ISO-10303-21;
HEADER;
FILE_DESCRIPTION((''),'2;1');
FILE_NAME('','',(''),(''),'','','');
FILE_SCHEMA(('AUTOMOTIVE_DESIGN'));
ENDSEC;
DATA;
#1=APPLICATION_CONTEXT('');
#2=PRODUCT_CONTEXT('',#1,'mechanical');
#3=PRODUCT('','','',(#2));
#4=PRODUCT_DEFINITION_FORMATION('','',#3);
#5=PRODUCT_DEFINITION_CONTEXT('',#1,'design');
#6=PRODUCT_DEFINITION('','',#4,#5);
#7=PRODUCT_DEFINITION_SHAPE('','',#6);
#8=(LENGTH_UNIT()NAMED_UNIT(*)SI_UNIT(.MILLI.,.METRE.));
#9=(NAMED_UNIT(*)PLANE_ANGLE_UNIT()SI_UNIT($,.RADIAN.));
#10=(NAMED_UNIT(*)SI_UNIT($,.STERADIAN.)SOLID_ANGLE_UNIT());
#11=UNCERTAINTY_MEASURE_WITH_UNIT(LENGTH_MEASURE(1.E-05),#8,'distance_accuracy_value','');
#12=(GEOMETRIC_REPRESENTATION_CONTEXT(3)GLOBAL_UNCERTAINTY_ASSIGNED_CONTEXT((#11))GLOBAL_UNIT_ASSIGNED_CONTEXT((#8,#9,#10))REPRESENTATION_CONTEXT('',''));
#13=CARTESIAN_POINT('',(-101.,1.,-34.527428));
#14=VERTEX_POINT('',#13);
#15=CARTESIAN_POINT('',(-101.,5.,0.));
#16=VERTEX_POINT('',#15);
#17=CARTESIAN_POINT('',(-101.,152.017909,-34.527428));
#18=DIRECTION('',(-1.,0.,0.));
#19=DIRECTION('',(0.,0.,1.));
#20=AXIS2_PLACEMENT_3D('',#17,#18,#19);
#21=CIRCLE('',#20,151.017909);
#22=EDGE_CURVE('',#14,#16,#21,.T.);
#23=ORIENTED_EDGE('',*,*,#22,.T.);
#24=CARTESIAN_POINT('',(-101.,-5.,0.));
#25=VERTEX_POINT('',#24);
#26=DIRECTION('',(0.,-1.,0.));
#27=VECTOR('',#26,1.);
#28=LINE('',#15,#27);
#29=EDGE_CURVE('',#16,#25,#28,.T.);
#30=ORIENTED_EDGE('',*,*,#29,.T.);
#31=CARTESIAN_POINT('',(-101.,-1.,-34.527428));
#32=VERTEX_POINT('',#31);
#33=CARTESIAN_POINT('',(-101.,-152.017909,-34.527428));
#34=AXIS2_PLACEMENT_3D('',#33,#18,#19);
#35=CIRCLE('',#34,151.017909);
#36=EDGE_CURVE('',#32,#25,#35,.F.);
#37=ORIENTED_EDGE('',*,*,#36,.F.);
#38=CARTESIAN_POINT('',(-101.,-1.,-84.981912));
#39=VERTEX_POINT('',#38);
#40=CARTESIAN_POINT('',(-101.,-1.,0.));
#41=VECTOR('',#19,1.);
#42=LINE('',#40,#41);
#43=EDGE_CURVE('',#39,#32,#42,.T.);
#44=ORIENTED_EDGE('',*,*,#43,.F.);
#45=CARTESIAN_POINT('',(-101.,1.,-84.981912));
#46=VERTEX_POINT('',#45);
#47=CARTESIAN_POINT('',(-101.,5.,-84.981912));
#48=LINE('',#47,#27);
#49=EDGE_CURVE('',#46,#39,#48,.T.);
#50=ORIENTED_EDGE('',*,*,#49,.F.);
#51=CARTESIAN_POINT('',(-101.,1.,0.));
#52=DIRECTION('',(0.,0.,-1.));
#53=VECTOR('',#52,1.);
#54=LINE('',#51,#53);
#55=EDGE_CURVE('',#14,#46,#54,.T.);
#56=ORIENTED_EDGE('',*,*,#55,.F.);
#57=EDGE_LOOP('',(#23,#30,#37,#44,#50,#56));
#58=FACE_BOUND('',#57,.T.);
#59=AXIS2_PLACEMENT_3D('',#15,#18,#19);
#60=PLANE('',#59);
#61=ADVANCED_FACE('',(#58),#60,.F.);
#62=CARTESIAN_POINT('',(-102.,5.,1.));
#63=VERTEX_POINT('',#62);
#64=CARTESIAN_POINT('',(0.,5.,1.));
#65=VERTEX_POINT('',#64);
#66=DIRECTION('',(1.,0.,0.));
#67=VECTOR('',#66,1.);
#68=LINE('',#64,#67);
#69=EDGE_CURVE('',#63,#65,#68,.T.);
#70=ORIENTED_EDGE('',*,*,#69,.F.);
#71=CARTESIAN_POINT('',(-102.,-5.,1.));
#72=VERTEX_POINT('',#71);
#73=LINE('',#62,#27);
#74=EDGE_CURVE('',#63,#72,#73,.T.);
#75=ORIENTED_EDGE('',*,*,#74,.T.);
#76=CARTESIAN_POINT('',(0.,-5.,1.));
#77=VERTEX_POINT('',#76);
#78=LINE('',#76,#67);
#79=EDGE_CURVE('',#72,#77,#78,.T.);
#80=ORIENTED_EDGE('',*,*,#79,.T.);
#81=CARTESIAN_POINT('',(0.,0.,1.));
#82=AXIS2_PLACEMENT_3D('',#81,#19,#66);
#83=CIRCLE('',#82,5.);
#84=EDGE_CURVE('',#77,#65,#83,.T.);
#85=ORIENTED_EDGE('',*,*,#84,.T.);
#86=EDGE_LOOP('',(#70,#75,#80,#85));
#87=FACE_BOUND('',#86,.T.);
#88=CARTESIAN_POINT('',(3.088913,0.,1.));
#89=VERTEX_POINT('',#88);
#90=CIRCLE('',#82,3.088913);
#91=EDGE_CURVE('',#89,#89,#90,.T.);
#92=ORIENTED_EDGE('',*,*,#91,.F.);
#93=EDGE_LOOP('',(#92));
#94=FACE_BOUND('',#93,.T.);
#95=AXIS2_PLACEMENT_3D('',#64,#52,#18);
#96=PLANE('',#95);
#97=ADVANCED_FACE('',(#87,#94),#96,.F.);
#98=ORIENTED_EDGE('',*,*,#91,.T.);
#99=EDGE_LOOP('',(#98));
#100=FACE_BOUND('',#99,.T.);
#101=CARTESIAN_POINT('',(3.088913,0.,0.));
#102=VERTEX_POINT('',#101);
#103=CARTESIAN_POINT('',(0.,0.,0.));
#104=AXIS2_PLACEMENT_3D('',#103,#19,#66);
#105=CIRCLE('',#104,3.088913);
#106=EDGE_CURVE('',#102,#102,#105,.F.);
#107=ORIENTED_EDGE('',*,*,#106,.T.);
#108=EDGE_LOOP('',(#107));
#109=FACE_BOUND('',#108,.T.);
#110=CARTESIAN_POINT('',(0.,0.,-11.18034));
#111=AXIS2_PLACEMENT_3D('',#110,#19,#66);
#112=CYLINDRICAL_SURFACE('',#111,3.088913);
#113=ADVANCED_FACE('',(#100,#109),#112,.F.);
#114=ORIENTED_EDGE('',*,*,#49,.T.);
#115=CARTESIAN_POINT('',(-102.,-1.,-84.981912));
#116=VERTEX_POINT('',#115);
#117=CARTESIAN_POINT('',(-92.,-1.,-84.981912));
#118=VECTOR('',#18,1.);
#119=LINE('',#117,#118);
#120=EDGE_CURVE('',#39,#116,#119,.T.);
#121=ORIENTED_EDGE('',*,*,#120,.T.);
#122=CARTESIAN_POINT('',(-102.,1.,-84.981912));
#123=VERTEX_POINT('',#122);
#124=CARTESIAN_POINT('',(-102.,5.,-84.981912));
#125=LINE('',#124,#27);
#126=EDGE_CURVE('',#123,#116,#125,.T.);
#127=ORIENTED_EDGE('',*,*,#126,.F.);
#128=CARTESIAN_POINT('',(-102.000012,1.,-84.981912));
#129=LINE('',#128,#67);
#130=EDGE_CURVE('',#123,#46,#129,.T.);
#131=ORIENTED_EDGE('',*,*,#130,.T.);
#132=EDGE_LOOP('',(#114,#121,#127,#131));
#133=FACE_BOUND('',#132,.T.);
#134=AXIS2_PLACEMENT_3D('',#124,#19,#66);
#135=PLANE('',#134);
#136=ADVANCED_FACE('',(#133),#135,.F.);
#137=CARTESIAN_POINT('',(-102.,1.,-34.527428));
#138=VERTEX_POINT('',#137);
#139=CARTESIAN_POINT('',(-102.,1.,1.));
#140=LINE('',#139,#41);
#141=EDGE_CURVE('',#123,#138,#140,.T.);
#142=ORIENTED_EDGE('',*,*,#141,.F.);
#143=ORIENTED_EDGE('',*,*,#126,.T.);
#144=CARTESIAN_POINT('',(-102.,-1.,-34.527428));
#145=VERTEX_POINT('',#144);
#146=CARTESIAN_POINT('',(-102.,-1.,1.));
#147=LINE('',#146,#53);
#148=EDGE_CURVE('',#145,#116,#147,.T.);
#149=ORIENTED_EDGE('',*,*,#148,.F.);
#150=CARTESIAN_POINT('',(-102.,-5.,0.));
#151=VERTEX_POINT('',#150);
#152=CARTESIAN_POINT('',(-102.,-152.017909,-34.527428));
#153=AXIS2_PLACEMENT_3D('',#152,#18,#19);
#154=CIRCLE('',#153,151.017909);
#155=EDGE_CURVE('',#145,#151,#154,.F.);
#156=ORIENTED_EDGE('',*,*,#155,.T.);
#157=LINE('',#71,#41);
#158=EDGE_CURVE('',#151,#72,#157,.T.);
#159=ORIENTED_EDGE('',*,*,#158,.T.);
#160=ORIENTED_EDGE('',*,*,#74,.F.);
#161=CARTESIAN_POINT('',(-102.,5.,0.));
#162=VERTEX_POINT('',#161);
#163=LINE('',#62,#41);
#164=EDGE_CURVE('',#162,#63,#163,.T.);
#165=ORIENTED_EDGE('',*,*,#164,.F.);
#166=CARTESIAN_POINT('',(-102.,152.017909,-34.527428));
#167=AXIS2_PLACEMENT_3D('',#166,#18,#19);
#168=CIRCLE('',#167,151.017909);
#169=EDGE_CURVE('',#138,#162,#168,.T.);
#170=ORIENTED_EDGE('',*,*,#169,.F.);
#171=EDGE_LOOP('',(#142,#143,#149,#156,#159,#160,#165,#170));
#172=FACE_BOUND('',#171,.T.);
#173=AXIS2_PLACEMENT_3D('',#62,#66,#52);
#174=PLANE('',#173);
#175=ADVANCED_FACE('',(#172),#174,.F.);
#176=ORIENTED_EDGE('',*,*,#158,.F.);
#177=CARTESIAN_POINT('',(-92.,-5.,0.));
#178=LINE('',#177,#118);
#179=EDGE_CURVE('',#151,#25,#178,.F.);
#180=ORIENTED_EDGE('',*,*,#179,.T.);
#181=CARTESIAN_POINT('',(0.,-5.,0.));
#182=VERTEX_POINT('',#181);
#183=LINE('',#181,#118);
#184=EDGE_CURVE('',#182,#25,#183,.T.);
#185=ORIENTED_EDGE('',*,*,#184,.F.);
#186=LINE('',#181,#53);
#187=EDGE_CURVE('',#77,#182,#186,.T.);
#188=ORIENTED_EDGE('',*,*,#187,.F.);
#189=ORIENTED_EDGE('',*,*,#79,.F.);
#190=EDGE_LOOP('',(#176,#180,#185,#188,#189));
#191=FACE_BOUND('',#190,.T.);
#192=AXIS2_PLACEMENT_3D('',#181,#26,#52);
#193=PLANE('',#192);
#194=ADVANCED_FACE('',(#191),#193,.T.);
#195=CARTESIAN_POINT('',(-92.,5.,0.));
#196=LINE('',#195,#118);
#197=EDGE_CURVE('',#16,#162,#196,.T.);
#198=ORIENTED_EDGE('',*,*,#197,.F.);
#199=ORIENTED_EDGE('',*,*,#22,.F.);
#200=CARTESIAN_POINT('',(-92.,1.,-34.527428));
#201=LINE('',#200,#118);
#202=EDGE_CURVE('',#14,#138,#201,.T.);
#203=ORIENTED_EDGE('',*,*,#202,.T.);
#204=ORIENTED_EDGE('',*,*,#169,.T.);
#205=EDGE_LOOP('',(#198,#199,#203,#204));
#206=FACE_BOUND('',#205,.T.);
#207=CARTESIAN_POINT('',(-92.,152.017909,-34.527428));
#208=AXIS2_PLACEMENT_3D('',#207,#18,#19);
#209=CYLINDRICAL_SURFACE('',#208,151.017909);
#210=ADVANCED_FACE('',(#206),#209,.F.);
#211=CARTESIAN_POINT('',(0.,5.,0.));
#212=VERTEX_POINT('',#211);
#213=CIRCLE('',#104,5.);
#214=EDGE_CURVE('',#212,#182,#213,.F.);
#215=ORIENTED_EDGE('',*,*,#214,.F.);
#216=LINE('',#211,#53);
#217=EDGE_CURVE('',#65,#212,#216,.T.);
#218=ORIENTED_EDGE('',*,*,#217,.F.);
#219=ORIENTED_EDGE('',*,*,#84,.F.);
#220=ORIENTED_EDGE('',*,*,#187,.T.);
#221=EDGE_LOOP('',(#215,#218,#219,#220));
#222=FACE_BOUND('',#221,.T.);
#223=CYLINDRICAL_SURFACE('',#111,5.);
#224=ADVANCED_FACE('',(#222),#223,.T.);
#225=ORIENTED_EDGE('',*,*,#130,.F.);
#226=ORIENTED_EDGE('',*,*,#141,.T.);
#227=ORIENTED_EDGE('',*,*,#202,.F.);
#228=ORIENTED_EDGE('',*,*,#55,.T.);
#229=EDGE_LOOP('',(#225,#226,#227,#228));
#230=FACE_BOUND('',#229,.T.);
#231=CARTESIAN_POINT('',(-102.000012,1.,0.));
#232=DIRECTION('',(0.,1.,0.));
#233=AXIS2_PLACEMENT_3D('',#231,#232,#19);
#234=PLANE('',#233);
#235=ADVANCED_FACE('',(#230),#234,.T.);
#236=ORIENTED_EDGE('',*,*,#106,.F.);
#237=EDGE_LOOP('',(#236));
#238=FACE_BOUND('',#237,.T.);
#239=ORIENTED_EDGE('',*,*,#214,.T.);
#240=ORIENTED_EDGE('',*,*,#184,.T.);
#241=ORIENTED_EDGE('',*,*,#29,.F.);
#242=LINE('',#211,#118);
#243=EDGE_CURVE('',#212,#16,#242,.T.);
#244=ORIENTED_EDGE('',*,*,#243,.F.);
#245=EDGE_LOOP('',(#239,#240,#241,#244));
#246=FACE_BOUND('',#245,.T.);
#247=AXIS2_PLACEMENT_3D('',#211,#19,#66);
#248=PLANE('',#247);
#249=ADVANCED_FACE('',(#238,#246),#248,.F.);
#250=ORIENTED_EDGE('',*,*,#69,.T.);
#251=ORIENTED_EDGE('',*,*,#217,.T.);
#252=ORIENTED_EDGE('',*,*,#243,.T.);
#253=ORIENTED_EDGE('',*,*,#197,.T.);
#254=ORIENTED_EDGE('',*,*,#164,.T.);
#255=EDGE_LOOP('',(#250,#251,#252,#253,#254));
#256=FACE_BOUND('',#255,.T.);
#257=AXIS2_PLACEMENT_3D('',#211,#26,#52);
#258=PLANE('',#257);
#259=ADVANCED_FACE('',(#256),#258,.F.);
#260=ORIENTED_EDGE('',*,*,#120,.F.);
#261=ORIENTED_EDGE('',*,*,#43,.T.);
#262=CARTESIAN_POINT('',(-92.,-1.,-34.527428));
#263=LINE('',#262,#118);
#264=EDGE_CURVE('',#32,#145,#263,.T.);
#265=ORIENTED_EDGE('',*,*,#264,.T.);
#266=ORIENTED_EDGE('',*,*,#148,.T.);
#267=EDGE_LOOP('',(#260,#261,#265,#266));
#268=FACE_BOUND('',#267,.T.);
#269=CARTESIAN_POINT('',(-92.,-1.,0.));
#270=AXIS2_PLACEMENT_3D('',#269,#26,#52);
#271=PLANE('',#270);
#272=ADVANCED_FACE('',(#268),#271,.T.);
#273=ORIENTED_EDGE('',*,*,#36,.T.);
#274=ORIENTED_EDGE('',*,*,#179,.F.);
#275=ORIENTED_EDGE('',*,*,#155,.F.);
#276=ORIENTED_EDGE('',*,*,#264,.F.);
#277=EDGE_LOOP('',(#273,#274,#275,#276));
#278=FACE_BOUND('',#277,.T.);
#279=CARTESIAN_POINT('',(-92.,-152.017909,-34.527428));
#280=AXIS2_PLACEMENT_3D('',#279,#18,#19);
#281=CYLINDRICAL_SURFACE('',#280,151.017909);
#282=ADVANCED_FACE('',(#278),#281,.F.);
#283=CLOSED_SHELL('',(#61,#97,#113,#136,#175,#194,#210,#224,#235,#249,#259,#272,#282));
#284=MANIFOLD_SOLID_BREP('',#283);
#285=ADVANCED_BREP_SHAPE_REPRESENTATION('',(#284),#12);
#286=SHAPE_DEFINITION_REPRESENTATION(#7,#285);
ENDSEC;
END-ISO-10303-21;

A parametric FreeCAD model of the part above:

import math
import FreeCAD as App
import Part
import Sketcher

V = App.Vector
Q = App.Units.Quantity

doc = App.newDocument("Part")
body = doc.addObject("PartDesign::Body", "Body")

# Sketch on XZ plane
sketch1 = doc.addObject("Sketcher::SketchObject", "Sketch")
body.addObject(sketch1)
sketch1.AttachmentSupport = (doc.XZ_Plane, [""])
sketch1.MapMode = "FlatFace"
sketch1.addGeometry(Part.LineSegment(V(0, 0, 0), V(-101, 0, 0)), False)
sketch1.addGeometry(Part.LineSegment(V(-101, 0, 0), V(-101, -85, 0)), False)
sketch1.addGeometry(Part.LineSegment(V(-101, -85, 0), V(-102, -85, 0)), False)
sketch1.addGeometry(Part.LineSegment(V(-102, -85, 0), V(-102, 1, 0)), False)
sketch1.addGeometry(Part.LineSegment(V(-102, 1, 0), V(0, 1, 0)), False)
sketch1.addGeometry(Part.LineSegment(V(0, 1, 0), V(0, 0, 0)), False)
sketch1.addConstraint(Sketcher.Constraint("Coincident", 0, 2, 1, 1))
sketch1.addConstraint(Sketcher.Constraint("Coincident", 1, 2, 2, 1))
sketch1.addConstraint(Sketcher.Constraint("Coincident", 2, 2, 3, 1))
sketch1.addConstraint(Sketcher.Constraint("Coincident", 3, 2, 4, 1))
sketch1.addConstraint(Sketcher.Constraint("Coincident", 4, 2, 5, 1))
sketch1.addConstraint(Sketcher.Constraint("Coincident", 5, 2, 0, 1))
sketch1.addConstraint(Sketcher.Constraint("Horizontal", 0))
sketch1.addConstraint(Sketcher.Constraint("Vertical", 1))
sketch1.addConstraint(Sketcher.Constraint("Horizontal", 2))
sketch1.addConstraint(Sketcher.Constraint("Vertical", 3))
sketch1.addConstraint(Sketcher.Constraint("Horizontal", 4))
sketch1.addConstraint(Sketcher.Constraint("Vertical", 5))
sketch1.addConstraint(Sketcher.Constraint("Coincident", 5, 2, -1, 1))
sketch1.addConstraint(Sketcher.Constraint("Equal", 2, 5))
sketch1.addConstraint(Sketcher.Constraint("DistanceX", 0, 2, 0, 1, Q("101 mm")))
sketch1.addConstraint(Sketcher.Constraint("DistanceX", 2, 2, 2, 1, Q("1 mm")))
sketch1.addConstraint(Sketcher.Constraint("DistanceY", 1, 2, 1, 1, Q("84.981912 mm")))
pad1 = doc.addObject("PartDesign::Pad", "Pad")
body.addObject(pad1)
pad1.Profile = sketch1
pad1.Length = 10
pad1.Midplane = True

# Sketch on XY plane
sketch2 = doc.addObject("Sketcher::SketchObject", "Sketch001")
body.addObject(sketch2)
sketch2.AttachmentSupport = (doc.XY_Plane, [""])
sketch2.MapMode = "FlatFace"
sketch2.AttachmentOffset = App.Placement(V(0, 0, 1), App.Rotation())
sketch2.addGeometry(Part.Circle(V(0, 0, 0), V(0, 0, 1), 5), False)
sketch2.addGeometry(Part.Circle(V(0, 0, 0), V(0, 0, 1), 3.1), False)
sketch2.addConstraint(Sketcher.Constraint("Coincident", 0, 3, -1, 1))
sketch2.addConstraint(Sketcher.Constraint("Coincident", 1, 3, -1, 1))
sketch2.addConstraint(Sketcher.Constraint("Diameter", 0, Q("10 mm")))
sketch2.addConstraint(Sketcher.Constraint("Diameter", 1, Q("6.177826 mm")))
pad2 = doc.addObject("PartDesign::Pad", "Pad001")
body.addObject(pad2)
pad2.Profile = sketch2
pad2.Length = 1
pad2.Reversed = True

# Sketch on XY plane
sketch3 = doc.addObject("Sketcher::SketchObject", "Sketch002")
body.addObject(sketch3)
sketch3.AttachmentSupport = (doc.XY_Plane, [""])
sketch3.MapMode = "FlatFace"
sketch3.AttachmentOffset = App.Placement(V(0, 0, 1), App.Rotation())
sketch3.addGeometry(Part.Circle(V(0, 0, 0), V(0, 0, 1), 3.1), False)
sketch3.addConstraint(Sketcher.Constraint("Coincident", 0, 3, -1, 1))
sketch3.addConstraint(Sketcher.Constraint("Diameter", 0, Q("6.177826 mm")))
pocket1 = doc.addObject("PartDesign::Pocket", "Pocket")
body.addObject(pocket1)
pocket1.Profile = sketch3
pocket1.Length = 1

# Sketch on YZ plane
sketch4 = doc.addObject("Sketcher::SketchObject", "Sketch003")
body.addObject(sketch4)
sketch4.AttachmentSupport = (doc.YZ_Plane, [""])
sketch4.MapMode = "FlatFace"
sketch4.AttachmentOffset = App.Placement(V(0, 0, -102), App.Rotation())
sketch4.addGeometry(Part.LineSegment(V(5, -85, 0), V(1, -85, 0)), False)
sketch4.addGeometry(Part.LineSegment(V(1, -85, 0), V(1, -34.5, 0)), False)
sketch4.addGeometry(Part.ArcOfCircle(Part.Circle(V(152, -34.5, 0), V(0, 0, 1), 151), math.radians(166.78), math.radians(180)), False)
sketch4.addGeometry(Part.LineSegment(V(5, 0, 0), V(5, -85, 0)), False)
sketch4.addGeometry(Part.LineSegment(V(-1, -34.5, 0), V(-1, -85, 0)), False)
sketch4.addGeometry(Part.LineSegment(V(-1, -85, 0), V(-5, -85, 0)), False)
sketch4.addGeometry(Part.LineSegment(V(-5, -85, 0), V(-5, 0, 0)), False)
sketch4.addGeometry(Part.ArcOfCircle(Part.Circle(V(-152, -34.5, 0), V(0, 0, 1), 151), math.radians(0), math.radians(13.22)), False)
sketch4.addConstraint(Sketcher.Constraint("Coincident", 0, 2, 1, 1))
sketch4.addConstraint(Sketcher.Constraint("Tangent", 1, 2, 2, 2))
sketch4.addConstraint(Sketcher.Constraint("Coincident", 2, 1, 3, 1))
sketch4.addConstraint(Sketcher.Constraint("Coincident", 3, 2, 0, 1))
sketch4.addConstraint(Sketcher.Constraint("Coincident", 4, 2, 5, 1))
sketch4.addConstraint(Sketcher.Constraint("Coincident", 5, 2, 6, 1))
sketch4.addConstraint(Sketcher.Constraint("Coincident", 6, 2, 7, 2))
sketch4.addConstraint(Sketcher.Constraint("Tangent", 7, 1, 4, 1))
sketch4.addConstraint(Sketcher.Constraint("Horizontal", 0))
sketch4.addConstraint(Sketcher.Constraint("Vertical", 1))
sketch4.addConstraint(Sketcher.Constraint("Vertical", 3))
sketch4.addConstraint(Sketcher.Constraint("Vertical", 4))
sketch4.addConstraint(Sketcher.Constraint("Horizontal", 5))
sketch4.addConstraint(Sketcher.Constraint("Vertical", 6))
sketch4.addConstraint(Sketcher.Constraint("Equal", 2, 7))
sketch4.addConstraint(Sketcher.Constraint("Symmetric", 2, 1, 6, 2, -1, 1))
sketch4.addConstraint(Sketcher.Constraint("Symmetric", 2, 3, 7, 3, -2))
sketch4.addConstraint(Sketcher.Constraint("Horizontal", 3, 2, 4, 2))
sketch4.addConstraint(Sketcher.Constraint("DistanceX", 0, 2, 0, 1, Q("4 mm")))
sketch4.addConstraint(Sketcher.Constraint("DistanceX", -1, 1, 0, 2, Q("1 mm")))
sketch4.addConstraint(Sketcher.Constraint("Radius", 2, Q("151.017909 mm")))
sketch4.addConstraint(Sketcher.Constraint("DistanceY", 3, 2, 3, 1, Q("84.981912 mm")))
pocket2 = doc.addObject("PartDesign::Pocket", "Pocket001")
body.addObject(pocket2)
pocket2.Profile = sketch4
pocket2.Type = "ThroughAll"
pocket2.Midplane = True

doc.recompute()
